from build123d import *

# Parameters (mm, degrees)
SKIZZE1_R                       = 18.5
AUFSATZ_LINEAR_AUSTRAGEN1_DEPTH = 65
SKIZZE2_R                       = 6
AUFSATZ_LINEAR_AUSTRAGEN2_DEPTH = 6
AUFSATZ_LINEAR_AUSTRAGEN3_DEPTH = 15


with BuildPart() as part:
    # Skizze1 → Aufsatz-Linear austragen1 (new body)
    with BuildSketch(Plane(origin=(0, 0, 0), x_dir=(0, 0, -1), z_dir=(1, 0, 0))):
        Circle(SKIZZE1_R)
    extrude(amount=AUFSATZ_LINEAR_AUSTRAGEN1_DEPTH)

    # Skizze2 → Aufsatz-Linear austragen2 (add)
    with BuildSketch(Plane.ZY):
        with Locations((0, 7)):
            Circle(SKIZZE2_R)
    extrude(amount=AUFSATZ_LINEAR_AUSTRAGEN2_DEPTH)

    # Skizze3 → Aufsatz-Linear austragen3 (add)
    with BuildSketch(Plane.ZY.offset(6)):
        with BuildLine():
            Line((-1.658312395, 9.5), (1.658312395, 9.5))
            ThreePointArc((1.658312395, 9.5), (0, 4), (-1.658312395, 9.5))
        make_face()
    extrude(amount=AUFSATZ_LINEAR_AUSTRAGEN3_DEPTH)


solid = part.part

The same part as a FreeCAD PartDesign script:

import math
import FreeCAD as App
import Part
import Sketcher
Q = App.Units.Quantity

doc = App.newDocument("Part")
body = doc.addObject("PartDesign::Body", "Body")

# Sketch on YZ plane
sketch1 = body.newObject("Sketcher::SketchObject", "Sketch")
sketch1.AttachmentSupport = (doc.getObject("YZ_Plane"), [""])
sketch1.MapMode = "FlatFace"
sketch1.addGeometry(Part.Circle(App.Vector(0, 0, 0), App.Vector(0, 0, 1), 18), False)
sketch1.addConstraint([
    Sketcher.Constraint("Coincident", 0, 3, -1, 1),
    Sketcher.Constraint("Diameter", 0, Q("37 mm")),
])
pad1 = body.newObject("PartDesign::Pad", "Pad")
pad1.Profile = sketch1
pad1.Length = 65

# Sketch on YZ plane
sketch2 = body.newObject("Sketcher::SketchObject", "Sketch001")
sketch2.AttachmentSupport = (doc.getObject("YZ_Plane"), [""])
sketch2.MapMode = "FlatFace"
sketch2.addGeometry(Part.Circle(App.Vector(7, 0, 0), App.Vector(0, 0, 1), 6), False)
sketch2.addConstraint([
    Sketcher.Constraint("PointOnObject", 0, 3, -1),
    Sketcher.Constraint("Diameter", 0, Q("12 mm")),
    Sketcher.Constraint("DistanceX", -1, 1, 0, 3, Q("7 mm")),
])
pad2 = body.newObject("PartDesign::Pad", "Pad001")
pad2.Profile = sketch2
pad2.Length = 6
pad2.Reversed = True

# Sketch on YZ plane
sketch3 = body.newObject("Sketcher::SketchObject", "Sketch002")
sketch3.AttachmentSupport = (doc.getObject("YZ_Plane"), [""])
sketch3.MapMode = "FlatFace"
sketch3.AttachmentOffset = App.Placement(App.Vector(0, 0, -6), App.Rotation())
sketch3.addGeometry([
    Part.LineSegment(App.Vector(9.5, 1.7, 0), App.Vector(9.5, -1.7, 0)),
    Part.ArcOfCircle(Part.Circle(App.Vector(7, 0, 0), App.Vector(0, 0, 1), 3), math.radians(34), math.radians(326)),
], False)
sketch3.addConstraint([
    Sketcher.Constraint("Coincident", 0, 1, 1, 1),
    Sketcher.Constraint("Coincident", 1, 2, 0, 2),
    Sketcher.Constraint("Vertical", 0),
    Sketcher.Constraint("PointOnObject", 1, 3, -1),
    Sketcher.Constraint("Radius", 1, Q("3 mm")),
    Sketcher.Constraint("DistanceX", -1, 1, 1, 3, Q("7 mm")),
    Sketcher.Constraint("DistanceX", -1, 1, 0, 1, Q("9.5 mm")),
])
pad3 = body.newObject("PartDesign::Pad", "Pad002")
pad3.Profile = sketch3
pad3.Length = 15
pad3.Reversed = True

doc.recompute()
